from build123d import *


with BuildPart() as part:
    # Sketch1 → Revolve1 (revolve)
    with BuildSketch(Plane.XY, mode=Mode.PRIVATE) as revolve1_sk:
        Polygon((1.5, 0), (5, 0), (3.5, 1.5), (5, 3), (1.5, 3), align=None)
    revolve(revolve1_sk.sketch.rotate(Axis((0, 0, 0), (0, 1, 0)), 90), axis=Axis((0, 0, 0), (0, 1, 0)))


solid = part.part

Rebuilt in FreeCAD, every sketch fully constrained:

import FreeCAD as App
import Part
import Sketcher
from FreeCAD import Vector


def add_polygon(sketch, points):
    """Adds a closed chain of lines whose ends are joined by coincident constraints."""
    first, n = sketch.GeometryCount, len(points)
    for a, b in zip(points, points[1:] + points[:1]):
        sketch.addGeometry(Part.LineSegment(App.Vector(*a, 0), App.Vector(*b, 0)), False)
    for i in range(n):
        sketch.addConstraint(Sketcher.Constraint("Coincident", first + i, 2, first + (i + 1) % n, 1))

doc = App.newDocument("Part")
body = doc.addObject("PartDesign::Body", "Body")

# Sketch on XY plane
sketch1 = body.newObject("Sketcher::SketchObject", "Sketch")
sketch1.AttachmentSupport = (doc.getObject("XY_Plane"), [""])
sketch1.MapMode = "FlatFace"
add_polygon(sketch1, [(1.5, 0), (5, 0), (3.5, 1.5), (5, 3), (1.5, 3)])  # lines 0-4
sketch1.addConstraint([
    Sketcher.Constraint("Horizontal", 0),
    Sketcher.Constraint("Horizontal", 3),
    Sketcher.Constraint("Vertical", 4),
    Sketcher.Constraint("PointOnObject", 0, 2, -1),
    Sketcher.Constraint("Perpendicular", 1, 2),
    Sketcher.Constraint("Vertical", 0, 2, 2, 2),
    Sketcher.Constraint("Equal", 1, 2),
    Sketcher.Constraint("DistanceY", 4, 2, 4, 1, 3.0),
    Sketcher.Constraint("DistanceX", 0, 1, 0, 2, 3.5),
    Sketcher.Constraint("DistanceX", -1, 1, 0, 2, 5.0),
])
revolution = body.newObject("PartDesign::Revolution", "Revolution")
revolution.Profile = sketch1
revolution.ReferenceAxis = (sketch1, ["V_Axis"])
revolution.Angle = 360

doc.recompute()
